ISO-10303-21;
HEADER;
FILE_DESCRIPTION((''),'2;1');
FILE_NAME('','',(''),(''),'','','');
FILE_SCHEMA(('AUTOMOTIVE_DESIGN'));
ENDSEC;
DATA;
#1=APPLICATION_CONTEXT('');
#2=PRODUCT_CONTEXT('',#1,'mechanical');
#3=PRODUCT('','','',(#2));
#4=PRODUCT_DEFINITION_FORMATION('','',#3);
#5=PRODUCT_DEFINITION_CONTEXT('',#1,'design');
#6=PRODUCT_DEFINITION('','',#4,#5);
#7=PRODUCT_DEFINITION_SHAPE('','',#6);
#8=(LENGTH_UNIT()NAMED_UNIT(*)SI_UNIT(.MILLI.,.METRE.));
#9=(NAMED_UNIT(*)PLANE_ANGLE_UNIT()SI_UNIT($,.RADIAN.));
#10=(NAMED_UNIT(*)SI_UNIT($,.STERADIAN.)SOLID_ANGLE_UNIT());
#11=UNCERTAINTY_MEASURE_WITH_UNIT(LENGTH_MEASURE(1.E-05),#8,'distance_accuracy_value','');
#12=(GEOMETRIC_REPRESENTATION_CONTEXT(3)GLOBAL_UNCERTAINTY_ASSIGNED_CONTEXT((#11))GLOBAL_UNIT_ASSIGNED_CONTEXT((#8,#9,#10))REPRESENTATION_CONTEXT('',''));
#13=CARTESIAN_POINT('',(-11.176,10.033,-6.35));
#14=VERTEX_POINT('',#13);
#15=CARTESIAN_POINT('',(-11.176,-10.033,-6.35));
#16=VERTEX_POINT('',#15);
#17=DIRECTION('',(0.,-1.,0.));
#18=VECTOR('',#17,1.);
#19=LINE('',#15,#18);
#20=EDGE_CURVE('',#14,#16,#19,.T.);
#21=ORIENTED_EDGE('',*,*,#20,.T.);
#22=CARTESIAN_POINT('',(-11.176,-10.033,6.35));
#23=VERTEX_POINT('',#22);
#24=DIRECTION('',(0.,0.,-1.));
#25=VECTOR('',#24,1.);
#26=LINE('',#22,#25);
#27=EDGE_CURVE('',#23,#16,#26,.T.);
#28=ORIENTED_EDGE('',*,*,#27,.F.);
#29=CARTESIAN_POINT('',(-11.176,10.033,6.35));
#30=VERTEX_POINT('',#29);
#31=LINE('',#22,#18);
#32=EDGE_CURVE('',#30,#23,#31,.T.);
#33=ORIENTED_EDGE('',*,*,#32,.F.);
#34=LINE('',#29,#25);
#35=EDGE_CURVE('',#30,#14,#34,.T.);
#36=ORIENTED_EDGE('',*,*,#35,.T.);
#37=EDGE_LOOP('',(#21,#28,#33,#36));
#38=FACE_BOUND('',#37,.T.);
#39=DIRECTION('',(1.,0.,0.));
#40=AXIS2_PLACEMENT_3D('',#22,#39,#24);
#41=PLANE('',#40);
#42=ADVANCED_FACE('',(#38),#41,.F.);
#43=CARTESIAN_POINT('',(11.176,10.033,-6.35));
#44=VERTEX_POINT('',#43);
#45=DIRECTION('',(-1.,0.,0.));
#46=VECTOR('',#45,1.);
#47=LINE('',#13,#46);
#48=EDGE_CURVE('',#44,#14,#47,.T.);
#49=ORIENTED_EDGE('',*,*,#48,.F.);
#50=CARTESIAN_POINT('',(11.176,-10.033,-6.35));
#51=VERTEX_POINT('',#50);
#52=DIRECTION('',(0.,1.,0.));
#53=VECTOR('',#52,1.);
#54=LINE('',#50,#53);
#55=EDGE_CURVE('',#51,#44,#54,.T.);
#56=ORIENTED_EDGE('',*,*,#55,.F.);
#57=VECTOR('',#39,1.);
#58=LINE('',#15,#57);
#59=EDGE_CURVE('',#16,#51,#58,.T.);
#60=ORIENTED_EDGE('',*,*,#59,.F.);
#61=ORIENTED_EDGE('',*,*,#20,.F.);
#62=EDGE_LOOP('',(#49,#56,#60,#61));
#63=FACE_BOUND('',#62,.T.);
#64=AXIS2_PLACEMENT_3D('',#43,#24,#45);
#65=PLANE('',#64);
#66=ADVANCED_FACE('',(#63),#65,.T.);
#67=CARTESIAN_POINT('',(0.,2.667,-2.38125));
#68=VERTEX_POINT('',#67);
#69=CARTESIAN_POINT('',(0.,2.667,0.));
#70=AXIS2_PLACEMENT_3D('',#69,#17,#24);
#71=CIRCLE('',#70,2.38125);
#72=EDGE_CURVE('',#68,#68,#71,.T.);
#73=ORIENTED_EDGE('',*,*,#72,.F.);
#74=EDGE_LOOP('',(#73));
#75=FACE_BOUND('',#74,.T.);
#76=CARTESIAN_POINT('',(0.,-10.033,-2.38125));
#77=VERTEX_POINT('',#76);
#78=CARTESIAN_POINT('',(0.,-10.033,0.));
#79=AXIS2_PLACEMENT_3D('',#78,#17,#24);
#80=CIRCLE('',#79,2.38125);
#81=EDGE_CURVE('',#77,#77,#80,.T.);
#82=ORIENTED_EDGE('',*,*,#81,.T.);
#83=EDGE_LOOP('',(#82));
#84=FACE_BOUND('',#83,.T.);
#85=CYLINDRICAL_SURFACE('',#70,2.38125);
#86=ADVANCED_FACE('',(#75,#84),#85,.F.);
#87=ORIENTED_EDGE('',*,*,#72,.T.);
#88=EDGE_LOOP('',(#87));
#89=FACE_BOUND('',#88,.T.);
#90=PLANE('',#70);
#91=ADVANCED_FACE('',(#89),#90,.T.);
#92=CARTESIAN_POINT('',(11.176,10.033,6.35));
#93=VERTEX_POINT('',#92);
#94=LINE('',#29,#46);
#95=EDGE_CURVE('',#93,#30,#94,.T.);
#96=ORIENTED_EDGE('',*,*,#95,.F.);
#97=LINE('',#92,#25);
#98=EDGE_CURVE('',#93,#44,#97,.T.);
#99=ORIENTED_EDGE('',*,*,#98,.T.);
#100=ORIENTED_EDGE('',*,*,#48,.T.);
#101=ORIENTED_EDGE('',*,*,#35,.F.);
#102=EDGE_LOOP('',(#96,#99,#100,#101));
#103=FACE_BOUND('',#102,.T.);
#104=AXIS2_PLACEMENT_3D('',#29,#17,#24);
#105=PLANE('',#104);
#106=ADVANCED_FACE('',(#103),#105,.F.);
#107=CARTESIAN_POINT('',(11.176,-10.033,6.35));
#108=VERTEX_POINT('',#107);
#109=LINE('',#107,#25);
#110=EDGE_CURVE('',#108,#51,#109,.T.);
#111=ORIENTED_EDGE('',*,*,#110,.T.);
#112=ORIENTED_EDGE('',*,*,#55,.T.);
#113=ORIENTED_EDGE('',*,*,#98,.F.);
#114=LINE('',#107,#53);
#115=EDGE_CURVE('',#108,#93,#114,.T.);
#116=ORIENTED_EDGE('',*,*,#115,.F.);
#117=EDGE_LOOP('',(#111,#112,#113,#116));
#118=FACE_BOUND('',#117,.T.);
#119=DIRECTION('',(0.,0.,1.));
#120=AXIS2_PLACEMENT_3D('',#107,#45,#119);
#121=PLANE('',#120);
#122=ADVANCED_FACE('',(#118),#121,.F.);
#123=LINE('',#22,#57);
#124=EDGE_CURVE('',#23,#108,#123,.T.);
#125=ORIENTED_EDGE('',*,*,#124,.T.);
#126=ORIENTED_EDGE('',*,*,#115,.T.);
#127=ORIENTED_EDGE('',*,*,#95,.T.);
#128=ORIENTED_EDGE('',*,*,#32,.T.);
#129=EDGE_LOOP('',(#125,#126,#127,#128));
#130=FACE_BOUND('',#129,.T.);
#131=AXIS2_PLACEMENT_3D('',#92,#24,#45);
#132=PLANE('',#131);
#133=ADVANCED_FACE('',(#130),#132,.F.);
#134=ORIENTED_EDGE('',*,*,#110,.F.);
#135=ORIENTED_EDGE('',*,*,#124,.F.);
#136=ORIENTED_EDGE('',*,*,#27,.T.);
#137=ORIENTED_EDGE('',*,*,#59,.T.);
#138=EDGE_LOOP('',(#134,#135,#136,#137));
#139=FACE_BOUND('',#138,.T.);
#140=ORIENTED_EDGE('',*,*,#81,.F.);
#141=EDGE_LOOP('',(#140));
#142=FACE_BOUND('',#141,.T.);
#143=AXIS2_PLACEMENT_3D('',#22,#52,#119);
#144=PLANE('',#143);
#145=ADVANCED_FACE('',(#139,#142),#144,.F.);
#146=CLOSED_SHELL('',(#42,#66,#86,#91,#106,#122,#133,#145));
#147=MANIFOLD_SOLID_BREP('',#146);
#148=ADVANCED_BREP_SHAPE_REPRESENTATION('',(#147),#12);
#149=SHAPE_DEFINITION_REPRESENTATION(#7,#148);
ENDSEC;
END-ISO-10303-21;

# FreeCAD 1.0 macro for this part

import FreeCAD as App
import Part
import Sketcher

V = App.Vector
Q = App.Units.Quantity


def add_polygon(sketch, points):
    """Adds a closed chain of lines whose ends are joined by coincident constraints."""
    first, n = sketch.GeometryCount, len(points)
    for a, b in zip(points, points[1:] + points[:1]):
        sketch.addGeometry(Part.LineSegment(App.Vector(*a, 0), App.Vector(*b, 0)), False)
    for i in range(n):
        sketch.addConstraint(Sketcher.Constraint("Coincident", first + i, 2, first + (i + 1) % n, 1))

doc = App.newDocument("Part")
body = doc.addObject("PartDesign::Body", "Body")

# Sketch on XY plane
sketch1 = body.newObject("Sketcher::SketchObject", "Sketch")
sketch1.AttachmentSupport = (doc.getObject("XY_Plane"), [""])
sketch1.MapMode = "FlatFace"
add_polygon(sketch1, [(-11, 10), (-11, -10), (11, -10), (11, 10)])  # lines 0-3
sketch1.addConstraint(Sketcher.Constraint("Vertical", 0))
sketch1.addConstraint(Sketcher.Constraint("Horizontal", 1))
sketch1.addConstraint(Sketcher.Constraint("Vertical", 2))
sketch1.addConstraint(Sketcher.Constraint("Horizontal", 3))
sketch1.addConstraint(Sketcher.Constraint("Symmetric", 0, 2, 2, 2, -1, 1))
sketch1.addConstraint(Sketcher.Constraint("DistanceX", 1, 1, 1, 2, Q("0.88 in")))
sketch1.addConstraint(Sketcher.Constraint("DistanceY", 0, 2, 0, 1, Q("0.79 in")))
pad1 = body.newObject("PartDesign::Pad", "Pad")
pad1.Profile = sketch1
pad1.Length = Q("0.5 in")
pad1.Midplane = True

# Sketch on XZ plane
sketch2 = body.newObject("Sketcher::SketchObject", "Sketch001")
sketch2.AttachmentSupport = (doc.getObject("XZ_Plane"), [""])
sketch2.MapMode = "FlatFace"
sketch2.AttachmentOffset = App.Placement(V(0, 0, 0.395 * 25.4), App.Rotation())
sketch2.addGeometry(Part.Circle(V(0, 0, 0), V(0, 0, 1), 2.4), False)
sketch2.addConstraint(Sketcher.Constraint("Coincident", 0, 3, -1, 1))
sketch2.addConstraint(Sketcher.Constraint("Diameter", 0, Q("0.1875 in")))
pocket1 = body.newObject("PartDesign::Pocket", "Pocket")
pocket1.Profile = sketch2
pocket1.Length = Q("0.5 in")

doc.recompute()
